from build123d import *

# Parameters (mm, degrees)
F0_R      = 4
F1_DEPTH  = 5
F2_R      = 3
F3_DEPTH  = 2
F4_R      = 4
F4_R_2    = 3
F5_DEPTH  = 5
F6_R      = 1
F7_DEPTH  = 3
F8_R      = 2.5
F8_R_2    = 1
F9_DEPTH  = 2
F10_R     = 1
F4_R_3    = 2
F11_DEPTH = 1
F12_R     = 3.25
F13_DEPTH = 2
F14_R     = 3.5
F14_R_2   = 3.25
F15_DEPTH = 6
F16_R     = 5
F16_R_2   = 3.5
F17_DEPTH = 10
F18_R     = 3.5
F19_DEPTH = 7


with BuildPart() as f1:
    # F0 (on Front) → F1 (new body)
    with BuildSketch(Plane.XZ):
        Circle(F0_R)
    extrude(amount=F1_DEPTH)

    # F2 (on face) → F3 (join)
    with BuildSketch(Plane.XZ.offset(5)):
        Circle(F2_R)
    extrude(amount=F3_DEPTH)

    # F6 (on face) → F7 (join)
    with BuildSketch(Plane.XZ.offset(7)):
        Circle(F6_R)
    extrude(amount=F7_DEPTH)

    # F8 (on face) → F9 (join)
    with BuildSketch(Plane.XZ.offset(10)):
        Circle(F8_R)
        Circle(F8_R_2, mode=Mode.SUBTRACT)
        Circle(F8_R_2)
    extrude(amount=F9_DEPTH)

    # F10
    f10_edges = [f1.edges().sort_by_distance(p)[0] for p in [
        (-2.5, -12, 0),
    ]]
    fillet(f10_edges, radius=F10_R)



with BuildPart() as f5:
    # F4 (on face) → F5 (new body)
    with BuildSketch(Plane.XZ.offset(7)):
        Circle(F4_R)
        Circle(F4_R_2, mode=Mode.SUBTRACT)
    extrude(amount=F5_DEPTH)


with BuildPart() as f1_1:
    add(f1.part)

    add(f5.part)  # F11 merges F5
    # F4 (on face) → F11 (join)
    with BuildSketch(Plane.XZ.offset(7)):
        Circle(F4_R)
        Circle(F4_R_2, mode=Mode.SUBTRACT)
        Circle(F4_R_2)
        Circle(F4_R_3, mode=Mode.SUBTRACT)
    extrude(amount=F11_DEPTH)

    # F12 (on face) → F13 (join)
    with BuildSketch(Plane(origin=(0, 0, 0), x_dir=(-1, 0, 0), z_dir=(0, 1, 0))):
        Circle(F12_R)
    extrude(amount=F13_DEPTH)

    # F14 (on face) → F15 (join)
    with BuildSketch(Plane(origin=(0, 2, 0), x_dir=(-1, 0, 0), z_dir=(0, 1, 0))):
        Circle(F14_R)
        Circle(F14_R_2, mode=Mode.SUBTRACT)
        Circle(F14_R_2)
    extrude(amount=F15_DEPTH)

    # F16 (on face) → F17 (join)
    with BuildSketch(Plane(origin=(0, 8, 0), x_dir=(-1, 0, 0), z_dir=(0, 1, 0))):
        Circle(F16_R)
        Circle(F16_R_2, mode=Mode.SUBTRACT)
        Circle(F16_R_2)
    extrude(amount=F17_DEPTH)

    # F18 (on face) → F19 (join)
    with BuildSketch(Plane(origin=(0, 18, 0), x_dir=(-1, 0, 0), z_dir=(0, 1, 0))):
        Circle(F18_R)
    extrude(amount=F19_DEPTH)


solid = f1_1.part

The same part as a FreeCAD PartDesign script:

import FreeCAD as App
import Part
import Sketcher
Q = App.Units.Quantity


def edges_at(feature, points):
    """Names of the edges that pass closest to the given points."""
    edges = feature.Shape.Edges
    near = lambda p: min(range(len(edges)), key=lambda i: edges[i].distToShape(Part.Vertex(*p))[0])
    return sorted({f"Edge{near(p) + 1}" for p in points})

doc = App.newDocument("Part")
params = doc.addObject("Spreadsheet::Sheet", "Params")
for row, (alias, value) in enumerate([
    ("sketch1_diameter", "8 mm"),
    ("pad1_length", "5 mm"),
    ("sketch2_diameter", "6 mm"),
    ("pad2_length", "2 mm"),
    ("sketch3_diameter", "2 mm"),
    ("pad3_length", "3 mm"),
    ("sketch4_diameter", "5 mm"),
    ("pad4_length", "2 mm"),
    ("fillet_radius", "1 mm"),
    ("sketch5_diameter", "8 mm"),
    ("sketch5_diameter2", "6 mm"),
    ("pad5_length", "5 mm"),
    ("sketch6_diameter", "8 mm"),
    ("sketch6_diameter2", "4 mm"),
    ("pad6_length", "1 mm"),
    ("sketch7_diameter", "6.5 mm"),
    ("pad7_length", "2 mm"),
    ("sketch8_diameter", "7 mm"),
    ("pad8_length", "6 mm"),
    ("sketch9_diameter", "10 mm"),
    ("pad9_length", "10 mm"),
    ("sketch10_diameter", "7 mm"),
    ("pad10_length", "7 mm"),
], start=1):
    params.set(f"A{row}", alias)
    params.set(f"B{row}", "=" + value)
    params.setAlias(f"B{row}", alias)

body = doc.addObject("PartDesign::Body", "Body")

# Sketch on XZ plane
sketch1 = doc.addObject("Sketcher::SketchObject", "Sketch")
body.addObject(sketch1)
sketch1.AttachmentSupport = (doc.XZ_Plane, [""])
sketch1.MapMode = "FlatFace"
sketch1.addGeometry(Part.Circle(App.Vector(0, 0, 0), App.Vector(0, 0, 1), 4), False)
sketch1.addConstraint(Sketcher.Constraint("Coincident", 0, 3, -1, 1))
sketch1.addConstraint(Sketcher.Constraint("Diameter", 0, Q("8 mm")))
sketch1.setExpression("Constraints[1]", "Params.sketch1_diameter")
pad1 = doc.addObject("PartDesign::Pad", "Pad")
body.addObject(pad1)
pad1.Profile = sketch1
pad1.setExpression("Length", "Params.pad1_length")

# Sketch on XZ plane
sketch2 = doc.addObject("Sketcher::SketchObject", "Sketch001")
body.addObject(sketch2)
sketch2.AttachmentSupport = (doc.XZ_Plane, [""])
sketch2.MapMode = "FlatFace"
sketch2.AttachmentOffset = App.Placement(App.Vector(0, 0, 5), App.Rotation())
sketch2.addGeometry(Part.Circle(App.Vector(0, 0, 0), App.Vector(0, 0, 1), 3), False)
sketch2.addConstraint(Sketcher.Constraint("Coincident", 0, 3, -1, 1))
sketch2.addConstraint(Sketcher.Constraint("Diameter", 0, Q("6 mm")))
sketch2.setExpression("Constraints[1]", "Params.sketch2_diameter")
pad2 = doc.addObject("PartDesign::Pad", "Pad001")
body.addObject(pad2)
pad2.Profile = sketch2
pad2.setExpression("Length", "Params.pad2_length")

# Sketch on XZ plane
sketch3 = doc.addObject("Sketcher::SketchObject", "Sketch002")
body.addObject(sketch3)
sketch3.AttachmentSupport = (doc.XZ_Plane, [""])
sketch3.MapMode = "FlatFace"
sketch3.AttachmentOffset = App.Placement(App.Vector(0, 0, 7), App.Rotation())
sketch3.addGeometry(Part.Circle(App.Vector(0, 0, 0), App.Vector(0, 0, 1), 1), False)
sketch3.addConstraint(Sketcher.Constraint("Coincident", 0, 3, -1, 1))
sketch3.addConstraint(Sketcher.Constraint("Diameter", 0, Q("2 mm")))
sketch3.setExpression("Constraints[1]", "Params.sketch3_diameter")
pad3 = doc.addObject("PartDesign::Pad", "Pad002")
body.addObject(pad3)
pad3.Profile = sketch3
pad3.setExpression("Length", "Params.pad3_length")

# Sketch on XZ plane
sketch4 = doc.addObject("Sketcher::SketchObject", "Sketch003")
body.addObject(sketch4)
sketch4.AttachmentSupport = (doc.XZ_Plane, [""])
sketch4.MapMode = "FlatFace"
sketch4.AttachmentOffset = App.Placement(App.Vector(0, 0, 10), App.Rotation())
sketch4.addGeometry(Part.Circle(App.Vector(0, 0, 0), App.Vector(0, 0, 1), 2.5), False)
sketch4.addConstraint(Sketcher.Constraint("Coincident", 0, 3, -1, 1))
sketch4.addConstraint(Sketcher.Constraint("Diameter", 0, Q("5 mm")))
sketch4.setExpression("Constraints[1]", "Params.sketch4_diameter")
pad4 = doc.addObject("PartDesign::Pad", "Pad003")
body.addObject(pad4)
pad4.Profile = sketch4
pad4.setExpression("Length", "Params.pad4_length")
doc.recompute()

fillet = doc.addObject("PartDesign::Fillet", "Fillet")
body.addObject(fillet)
fillet.Base = (pad4, edges_at(pad4, [(-2.5, -12, 0)]))
fillet.setExpression("Radius", "Params.fillet_radius")
body2 = doc.addObject("PartDesign::Body", "Body001")

# Sketch on XZ plane
sketch5 = doc.addObject("Sketcher::SketchObject", "Sketch004")
body2.addObject(sketch5)
sketch5.AttachmentSupport = (doc.getObject("XZ_Plane001"), [""])
sketch5.MapMode = "FlatFace"
sketch5.AttachmentOffset = App.Placement(App.Vector(0, 0, 7), App.Rotation())
sketch5.addGeometry(Part.Circle(App.Vector(0, 0, 0), App.Vector(0, 0, 1), 4), False)
sketch5.addGeometry(Part.Circle(App.Vector(0, 0, 0), App.Vector(0, 0, 1), 3), False)
sketch5.addConstraint(Sketcher.Constraint("Coincident", 0, 3, -1, 1))
sketch5.addConstraint(Sketcher.Constraint("Coincident", 1, 3, -1, 1))
sketch5.addConstraint(Sketcher.Constraint("Diameter", 0, Q("8 mm")))
sketch5.addConstraint(Sketcher.Constraint("Diameter", 1, Q("6 mm")))
sketch5.setExpression("Constraints[2]", "Params.sketch5_diameter")
sketch5.setExpression("Constraints[3]", "Params.sketch5_diameter2")
pad5 = doc.addObject("PartDesign::Pad", "Pad004")
body2.addObject(pad5)
pad5.Profile = sketch5
pad5.setExpression("Length", "Params.pad5_length")
body.AllowCompound = True
doc.recompute()

boolean = doc.addObject("PartDesign::Boolean", "Boolean")
body.addObject(boolean)
boolean.Type = "Fuse"
boolean.addObjects([body2])

# Sketch on XZ plane
sketch6 = doc.addObject("Sketcher::SketchObject", "Sketch005")
body.addObject(sketch6)
sketch6.AttachmentSupport = (doc.XZ_Plane, [""])
sketch6.MapMode = "FlatFace"
sketch6.AttachmentOffset = App.Placement(App.Vector(0, 0, 7), App.Rotation())
sketch6.addGeometry(Part.Circle(App.Vector(0, 0, 0), App.Vector(0, 0, 1), 4), False)
sketch6.addGeometry(Part.Circle(App.Vector(0, 0, 0), App.Vector(0, 0, 1), 2), False)
sketch6.addConstraint(Sketcher.Constraint("Coincident", 0, 3, -1, 1))
sketch6.addConstraint(Sketcher.Constraint("Coincident", 1, 3, -1, 1))
sketch6.addConstraint(Sketcher.Constraint("Diameter", 0, Q("8 mm")))
sketch6.addConstraint(Sketcher.Constraint("Diameter", 1, Q("4 mm")))
sketch6.setExpression("Constraints[2]", "Params.sketch6_diameter")
sketch6.setExpression("Constraints[3]", "Params.sketch6_diameter2")
pad6 = doc.addObject("PartDesign::Pad", "Pad005")
body.addObject(pad6)
pad6.Profile = sketch6
pad6.setExpression("Length", "Params.pad6_length")

# Sketch on XZ plane
sketch7 = doc.addObject("Sketcher::SketchObject", "Sketch006")
body.addObject(sketch7)
sketch7.AttachmentSupport = (doc.XZ_Plane, [""])
sketch7.MapMode = "FlatFace"
sketch7.addGeometry(Part.Circle(App.Vector(0, 0, 0), App.Vector(0, 0, 1), 3.25), False)
sketch7.addConstraint(Sketcher.Constraint("Coincident", 0, 3, -1, 1))
sketch7.addConstraint(Sketcher.Constraint("Diameter", 0, Q("6.5 mm")))
sketch7.setExpression("Constraints[1]", "Params.sketch7_diameter")
pad7 = doc.addObject("PartDesign::Pad", "Pad006")
body.addObject(pad7)
pad7.Profile = sketch7
pad7.setExpression("Length", "Params.pad7_length")
pad7.Reversed = True

# Sketch on XZ plane
sketch8 = doc.addObject("Sketcher::SketchObject", "Sketch007")
body.addObject(sketch8)
sketch8.AttachmentSupport = (doc.XZ_Plane, [""])
sketch8.MapMode = "FlatFace"
sketch8.AttachmentOffset = App.Placement(App.Vector(0, 0, -2), App.Rotation())
sketch8.addGeometry(Part.Circle(App.Vector(0, 0, 0), App.Vector(0, 0, 1), 3.5), False)
sketch8.addConstraint(Sketcher.Constraint("Coincident", 0, 3, -1, 1))
sketch8.addConstraint(Sketcher.Constraint("Diameter", 0, Q("7 mm")))
sketch8.setExpression("Constraints[1]", "Params.sketch8_diameter")
pad8 = doc.addObject("PartDesign::Pad", "Pad007")
body.addObject(pad8)
pad8.Profile = sketch8
pad8.setExpression("Length", "Params.pad8_length")
pad8.Reversed = True

# Sketch on XZ plane
sketch9 = doc.addObject("Sketcher::SketchObject", "Sketch008")
body.addObject(sketch9)
sketch9.AttachmentSupport = (doc.XZ_Plane, [""])
sketch9.MapMode = "FlatFace"
sketch9.AttachmentOffset = App.Placement(App.Vector(0, 0, -8), App.Rotation())
sketch9.addGeometry(Part.Circle(App.Vector(0, 0, 0), App.Vector(0, 0, 1), 5), False)
sketch9.addConstraint(Sketcher.Constraint("Coincident", 0, 3, -1, 1))
sketch9.addConstraint(Sketcher.Constraint("Diameter", 0, Q("10 mm")))
sketch9.setExpression("Constraints[1]", "Params.sketch9_diameter")
pad9 = doc.addObject("PartDesign::Pad", "Pad008")
body.addObject(pad9)
pad9.Profile = sketch9
pad9.setExpression("Length", "Params.pad9_length")
pad9.Reversed = True

# Sketch on XZ plane
sketch10 = doc.addObject("Sketcher::SketchObject", "Sketch009")
body.addObject(sketch10)
sketch10.AttachmentSupport = (doc.XZ_Plane, [""])
sketch10.MapMode = "FlatFace"
sketch10.AttachmentOffset = App.Placement(App.Vector(0, 0, -18), App.Rotation())
sketch10.addGeometry(Part.Circle(App.Vector(0, 0, 0), App.Vector(0, 0, 1), 3.5), False)
sketch10.addConstraint(Sketcher.Constraint("Coincident", 0, 3, -1, 1))
sketch10.addConstraint(Sketcher.Constraint("Diameter", 0, Q("7 mm")))
sketch10.setExpression("Constraints[1]", "Params.sketch10_diameter")
pad10 = doc.addObject("PartDesign::Pad", "Pad009")
body.addObject(pad10)
pad10.Profile = sketch10
pad10.setExpression("Length", "Params.pad10_length")
pad10.Reversed = True

doc.recompute()
